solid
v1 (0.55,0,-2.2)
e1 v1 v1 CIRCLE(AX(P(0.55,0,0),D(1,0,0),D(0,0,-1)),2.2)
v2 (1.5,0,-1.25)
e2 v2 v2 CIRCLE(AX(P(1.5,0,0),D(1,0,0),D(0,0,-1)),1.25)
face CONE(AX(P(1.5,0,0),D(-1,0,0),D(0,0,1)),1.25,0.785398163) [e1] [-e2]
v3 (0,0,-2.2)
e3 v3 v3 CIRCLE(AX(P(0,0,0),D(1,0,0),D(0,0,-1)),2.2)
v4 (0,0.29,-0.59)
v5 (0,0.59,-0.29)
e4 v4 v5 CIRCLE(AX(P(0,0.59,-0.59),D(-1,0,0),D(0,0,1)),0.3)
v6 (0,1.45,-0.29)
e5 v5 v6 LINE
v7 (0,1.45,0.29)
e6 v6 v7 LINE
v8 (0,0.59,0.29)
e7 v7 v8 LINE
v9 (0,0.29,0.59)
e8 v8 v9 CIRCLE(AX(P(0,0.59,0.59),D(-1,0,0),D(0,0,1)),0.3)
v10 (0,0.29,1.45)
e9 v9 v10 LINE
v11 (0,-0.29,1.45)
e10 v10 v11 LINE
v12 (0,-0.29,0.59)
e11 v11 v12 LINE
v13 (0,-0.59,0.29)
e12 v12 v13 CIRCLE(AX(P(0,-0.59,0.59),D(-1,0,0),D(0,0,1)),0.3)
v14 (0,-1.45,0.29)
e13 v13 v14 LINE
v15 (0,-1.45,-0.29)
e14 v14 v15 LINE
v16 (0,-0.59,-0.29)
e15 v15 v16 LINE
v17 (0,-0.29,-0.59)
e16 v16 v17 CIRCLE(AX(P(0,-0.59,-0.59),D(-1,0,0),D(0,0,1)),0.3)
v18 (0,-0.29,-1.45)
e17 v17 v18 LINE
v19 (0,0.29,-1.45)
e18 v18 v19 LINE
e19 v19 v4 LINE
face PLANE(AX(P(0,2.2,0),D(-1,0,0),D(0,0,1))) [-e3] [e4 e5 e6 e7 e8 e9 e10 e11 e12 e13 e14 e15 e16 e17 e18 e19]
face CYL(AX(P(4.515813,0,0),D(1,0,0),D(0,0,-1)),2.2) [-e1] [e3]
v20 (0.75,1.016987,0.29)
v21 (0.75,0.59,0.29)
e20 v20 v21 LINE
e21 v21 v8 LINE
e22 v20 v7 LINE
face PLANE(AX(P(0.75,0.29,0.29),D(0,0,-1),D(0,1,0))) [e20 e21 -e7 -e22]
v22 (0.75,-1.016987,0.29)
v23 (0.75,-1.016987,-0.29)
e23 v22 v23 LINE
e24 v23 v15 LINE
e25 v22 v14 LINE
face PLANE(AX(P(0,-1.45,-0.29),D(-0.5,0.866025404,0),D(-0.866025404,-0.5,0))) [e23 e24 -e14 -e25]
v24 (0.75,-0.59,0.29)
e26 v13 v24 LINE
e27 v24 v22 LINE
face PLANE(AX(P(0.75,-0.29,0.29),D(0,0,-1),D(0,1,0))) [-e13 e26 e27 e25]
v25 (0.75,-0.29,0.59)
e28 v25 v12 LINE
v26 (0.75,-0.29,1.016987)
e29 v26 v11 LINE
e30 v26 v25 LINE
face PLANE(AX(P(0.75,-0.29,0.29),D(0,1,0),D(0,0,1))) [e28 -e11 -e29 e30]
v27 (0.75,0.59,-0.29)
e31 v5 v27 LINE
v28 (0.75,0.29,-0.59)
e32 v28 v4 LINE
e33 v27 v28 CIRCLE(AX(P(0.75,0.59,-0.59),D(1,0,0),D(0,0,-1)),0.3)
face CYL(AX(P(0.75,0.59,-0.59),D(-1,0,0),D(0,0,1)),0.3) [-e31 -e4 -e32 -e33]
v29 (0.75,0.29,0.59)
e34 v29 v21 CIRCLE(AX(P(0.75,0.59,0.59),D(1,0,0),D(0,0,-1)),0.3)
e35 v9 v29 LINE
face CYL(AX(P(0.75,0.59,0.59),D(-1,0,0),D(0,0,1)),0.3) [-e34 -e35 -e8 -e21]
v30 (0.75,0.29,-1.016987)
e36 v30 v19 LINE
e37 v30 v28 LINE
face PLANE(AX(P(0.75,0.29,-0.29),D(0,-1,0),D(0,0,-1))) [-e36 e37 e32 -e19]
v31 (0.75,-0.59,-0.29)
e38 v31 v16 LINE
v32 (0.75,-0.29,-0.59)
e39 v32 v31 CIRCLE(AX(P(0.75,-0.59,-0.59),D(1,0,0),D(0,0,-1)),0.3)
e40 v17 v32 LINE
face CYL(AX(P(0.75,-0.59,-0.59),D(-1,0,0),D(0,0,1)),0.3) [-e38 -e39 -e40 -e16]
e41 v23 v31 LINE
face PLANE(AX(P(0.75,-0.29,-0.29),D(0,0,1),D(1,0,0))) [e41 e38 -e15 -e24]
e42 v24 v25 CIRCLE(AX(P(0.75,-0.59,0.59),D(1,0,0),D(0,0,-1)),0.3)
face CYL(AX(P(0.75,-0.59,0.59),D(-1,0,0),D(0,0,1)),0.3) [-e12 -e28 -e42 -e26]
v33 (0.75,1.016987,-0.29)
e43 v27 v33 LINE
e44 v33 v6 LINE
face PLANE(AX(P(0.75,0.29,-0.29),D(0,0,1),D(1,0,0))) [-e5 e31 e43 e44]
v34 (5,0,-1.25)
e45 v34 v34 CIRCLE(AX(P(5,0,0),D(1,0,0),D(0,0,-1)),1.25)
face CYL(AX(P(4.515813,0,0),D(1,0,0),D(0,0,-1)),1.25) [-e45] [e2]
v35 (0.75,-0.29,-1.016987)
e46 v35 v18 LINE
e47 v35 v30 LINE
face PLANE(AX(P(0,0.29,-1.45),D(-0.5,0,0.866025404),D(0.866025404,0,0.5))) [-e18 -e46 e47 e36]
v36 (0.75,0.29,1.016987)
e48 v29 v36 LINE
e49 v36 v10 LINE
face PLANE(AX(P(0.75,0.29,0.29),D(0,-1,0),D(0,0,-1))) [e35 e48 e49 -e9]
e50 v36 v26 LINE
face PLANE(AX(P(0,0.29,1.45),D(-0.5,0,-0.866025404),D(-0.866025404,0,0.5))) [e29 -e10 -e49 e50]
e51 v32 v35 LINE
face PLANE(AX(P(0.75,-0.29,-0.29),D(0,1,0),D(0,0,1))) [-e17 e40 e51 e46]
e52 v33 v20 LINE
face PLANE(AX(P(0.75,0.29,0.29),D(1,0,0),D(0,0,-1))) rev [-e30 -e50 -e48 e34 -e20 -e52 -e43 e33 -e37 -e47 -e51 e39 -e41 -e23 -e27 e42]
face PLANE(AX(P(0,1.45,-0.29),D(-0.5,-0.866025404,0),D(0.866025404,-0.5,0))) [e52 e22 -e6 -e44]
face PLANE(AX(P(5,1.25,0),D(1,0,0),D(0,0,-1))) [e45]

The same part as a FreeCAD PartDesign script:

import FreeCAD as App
import Part
import Sketcher
Q = App.Units.Quantity


def edges_at(feature, points):
    """Names of the edges that pass closest to the given points."""
    edges = feature.Shape.Edges
    near = lambda p: min(range(len(edges)), key=lambda i: edges[i].distToShape(Part.Vertex(*p))[0])
    return sorted({f"Edge{near(p) + 1}" for p in points})


def faces_at(feature, points):
    """Names of the faces that lie closest to the given points."""
    faces = feature.Shape.Faces
    near = lambda p: min(range(len(faces)), key=lambda i: faces[i].distToShape(Part.Vertex(*p))[0])
    return sorted({f"Face{near(p) + 1}" for p in points})


def add_polygon(sketch, points):
    """Adds a closed chain of lines whose ends are joined by coincident constraints."""
    first, n = sketch.GeometryCount, len(points)
    for a, b in zip(points, points[1:] + points[:1]):
        sketch.addGeometry(Part.LineSegment(App.Vector(*a, 0), App.Vector(*b, 0)), False)
    for i in range(n):
        sketch.addConstraint(Sketcher.Constraint("Coincident", first + i, 2, first + (i + 1) % n, 1))

doc = App.newDocument("Part")
body = doc.addObject("PartDesign::Body", "Body")

sketch1 = body.newObject("Sketcher::SketchObject", "Sketch")
sketch1.AttachmentSupport = (doc.getObject("XY_Plane"), [""])
sketch1.MapMode = "FlatFace"
add_polygon(sketch1, [(5, 1.2), (1.5, 1.2), (0.6, 2.2), (0, 2.2), (0, 0), (5, 0)])
sketch1.addConstraint(Sketcher.Constraint("Horizontal", 0))
sketch1.addConstraint(Sketcher.Constraint("Horizontal", 2))
sketch1.addConstraint(Sketcher.Constraint("Vertical", 3))
sketch1.addConstraint(Sketcher.Constraint("Horizontal", 4))
sketch1.addConstraint(Sketcher.Constraint("Vertical", 5))
sketch1.addConstraint(Sketcher.Constraint("Coincident", 3, 2, -1, 1))
sketch1.addConstraint(Sketcher.Constraint("DistanceX", 4, 1, 4, 2, 5.0))
sketch1.addConstraint(Sketcher.Constraint("Angle", 1, Q("135 deg")))
sketch1.addConstraint(Sketcher.Constraint("DistanceX", 0, 2, 0, 1, 3.5))
sketch1.addConstraint(Sketcher.Constraint("DistanceY", 3, 2, 3, 1, 2.2))
sketch1.addConstraint(Sketcher.Constraint("DistanceX", 2, 2, 2, 1, 0.55))
revolution = body.newObject("PartDesign::Revolution", "Revolution")
revolution.Profile = sketch1
revolution.ReferenceAxis = (sketch1, ["H_Axis"])
revolution.Angle = 360

sketch2 = body.newObject("Sketcher::SketchObject", "Sketch001")
sketch2.AttachmentSupport = (doc.getObject("YZ_Plane"), [""])
sketch2.MapMode = "FlatFace"
add_polygon(sketch2, [(0.3, -0.3), (1.4, -0.3), (1.4, 0.3), (0.3, 0.3), (0.3, 1.4), (-0.3, 1.4), (-0.3, 0.3), (-1.4, 0.3), (-1.4, -0.3), (-0.3, -0.3), (-0.3, -1.4), (0.3, -1.4)])
sketch2.addConstraint(Sketcher.Constraint("Horizontal", 0))
sketch2.addConstraint(Sketcher.Constraint("Vertical", 1))
sketch2.addConstraint(Sketcher.Constraint("Horizontal", 2))
sketch2.addConstraint(Sketcher.Constraint("Vertical", 3))
sketch2.addConstraint(Sketcher.Constraint("Horizontal", 4))
sketch2.addConstraint(Sketcher.Constraint("Vertical", 5))
sketch2.addConstraint(Sketcher.Constraint("Horizontal", 6))
sketch2.addConstraint(Sketcher.Constraint("Vertical", 7))
sketch2.addConstraint(Sketcher.Constraint("Horizontal", 8))
sketch2.addConstraint(Sketcher.Constraint("Vertical", 9))
sketch2.addConstraint(Sketcher.Constraint("Horizontal", 10))
sketch2.addConstraint(Sketcher.Constraint("Vertical", 11))
sketch2.addConstraint(Sketcher.Constraint("Symmetric", 0, 2, 6, 2, -1, 1))
sketch2.addConstraint(Sketcher.Constraint("Symmetric", 2, 2, 8, 2, -1, 1))
sketch2.addConstraint(Sketcher.Constraint("Symmetric", 4, 2, 10, 2, -1, 1))
sketch2.addConstraint(Sketcher.Constraint("Symmetric", 2, 2, 5, 2, -2))
sketch2.addConstraint(Sketcher.Constraint("Equal", 10, 1))
sketch2.addConstraint(Sketcher.Constraint("Equal", 8, 3))
sketch2.addConstraint(Sketcher.Constraint("DistanceX", 0, 1, 0, 2, 1.16))
sketch2.addConstraint(Sketcher.Constraint("DistanceX", 4, 2, 4, 1, 0.58))
pocket1 = body.newObject("PartDesign::Pocket", "Pocket")
pocket1.Profile = sketch2
pocket1.Length = 0.75
pocket1.Reversed = True
doc.recompute()

draft = body.newObject("PartDesign::Draft", "Draft")
draft.Base = (pocket1, faces_at(pocket1, [
    (0.375, -1.45, 0),
    (0.375, 0, 1.45),
    (0.375, 0, -1.45),
    (0.375, 1.45, 0),
]))
draft.NeutralPlane = (doc.getObject("YZ_Plane"), [""])
draft.Angle = 30
draft.Reversed = True
doc.recompute()

fillet = body.newObject("PartDesign::Fillet", "Fillet")
fillet.Base = (draft, edges_at(draft, [
    (0.375, 0.29, 0.29),
    (0.375, -0.29, 0.29),
    (0.375, -0.29, -0.29),
    (0.375, 0.29, -0.29),
]))
fillet.Radius = 0.3

sketch3 = body.newObject("Sketcher::SketchObject", "Sketch002")
sketch3.AttachmentSupport = (doc.getObject("XY_Plane"), [""])
sketch3.MapMode = "FlatFace"
add_polygon(sketch3, [(1.5, 1.25), (1.5, 0), (1.95, 0), (1.95, 1.25)])
sketch3.addConstraint(Sketcher.Constraint("Vertical", 0))
sketch3.addConstraint(Sketcher.Constraint("Horizontal", 1))
sketch3.addConstraint(Sketcher.Constraint("Vertical", 2))
sketch3.addConstraint(Sketcher.Constraint("Horizontal", 3))
sketch3.addConstraint(Sketcher.Constraint("PointOnObject", 0, 2, -1))
sketch3.addConstraint(Sketcher.Constraint("DistanceX", 1, 1, 1, 2, 0.45))
sketch3.addConstraint(Sketcher.Constraint("DistanceY", 0, 2, 0, 1, 1.25))
sketch3.addConstraint(Sketcher.Constraint("DistanceX", -1, 1, 0, 2, 1.5))
revolution2 = body.newObject("PartDesign::Revolution", "Revolution001")
revolution2.Profile = sketch3
revolution2.ReferenceAxis = (sketch3, ["H_Axis"])
revolution2.Angle = 360

doc.recompute()
